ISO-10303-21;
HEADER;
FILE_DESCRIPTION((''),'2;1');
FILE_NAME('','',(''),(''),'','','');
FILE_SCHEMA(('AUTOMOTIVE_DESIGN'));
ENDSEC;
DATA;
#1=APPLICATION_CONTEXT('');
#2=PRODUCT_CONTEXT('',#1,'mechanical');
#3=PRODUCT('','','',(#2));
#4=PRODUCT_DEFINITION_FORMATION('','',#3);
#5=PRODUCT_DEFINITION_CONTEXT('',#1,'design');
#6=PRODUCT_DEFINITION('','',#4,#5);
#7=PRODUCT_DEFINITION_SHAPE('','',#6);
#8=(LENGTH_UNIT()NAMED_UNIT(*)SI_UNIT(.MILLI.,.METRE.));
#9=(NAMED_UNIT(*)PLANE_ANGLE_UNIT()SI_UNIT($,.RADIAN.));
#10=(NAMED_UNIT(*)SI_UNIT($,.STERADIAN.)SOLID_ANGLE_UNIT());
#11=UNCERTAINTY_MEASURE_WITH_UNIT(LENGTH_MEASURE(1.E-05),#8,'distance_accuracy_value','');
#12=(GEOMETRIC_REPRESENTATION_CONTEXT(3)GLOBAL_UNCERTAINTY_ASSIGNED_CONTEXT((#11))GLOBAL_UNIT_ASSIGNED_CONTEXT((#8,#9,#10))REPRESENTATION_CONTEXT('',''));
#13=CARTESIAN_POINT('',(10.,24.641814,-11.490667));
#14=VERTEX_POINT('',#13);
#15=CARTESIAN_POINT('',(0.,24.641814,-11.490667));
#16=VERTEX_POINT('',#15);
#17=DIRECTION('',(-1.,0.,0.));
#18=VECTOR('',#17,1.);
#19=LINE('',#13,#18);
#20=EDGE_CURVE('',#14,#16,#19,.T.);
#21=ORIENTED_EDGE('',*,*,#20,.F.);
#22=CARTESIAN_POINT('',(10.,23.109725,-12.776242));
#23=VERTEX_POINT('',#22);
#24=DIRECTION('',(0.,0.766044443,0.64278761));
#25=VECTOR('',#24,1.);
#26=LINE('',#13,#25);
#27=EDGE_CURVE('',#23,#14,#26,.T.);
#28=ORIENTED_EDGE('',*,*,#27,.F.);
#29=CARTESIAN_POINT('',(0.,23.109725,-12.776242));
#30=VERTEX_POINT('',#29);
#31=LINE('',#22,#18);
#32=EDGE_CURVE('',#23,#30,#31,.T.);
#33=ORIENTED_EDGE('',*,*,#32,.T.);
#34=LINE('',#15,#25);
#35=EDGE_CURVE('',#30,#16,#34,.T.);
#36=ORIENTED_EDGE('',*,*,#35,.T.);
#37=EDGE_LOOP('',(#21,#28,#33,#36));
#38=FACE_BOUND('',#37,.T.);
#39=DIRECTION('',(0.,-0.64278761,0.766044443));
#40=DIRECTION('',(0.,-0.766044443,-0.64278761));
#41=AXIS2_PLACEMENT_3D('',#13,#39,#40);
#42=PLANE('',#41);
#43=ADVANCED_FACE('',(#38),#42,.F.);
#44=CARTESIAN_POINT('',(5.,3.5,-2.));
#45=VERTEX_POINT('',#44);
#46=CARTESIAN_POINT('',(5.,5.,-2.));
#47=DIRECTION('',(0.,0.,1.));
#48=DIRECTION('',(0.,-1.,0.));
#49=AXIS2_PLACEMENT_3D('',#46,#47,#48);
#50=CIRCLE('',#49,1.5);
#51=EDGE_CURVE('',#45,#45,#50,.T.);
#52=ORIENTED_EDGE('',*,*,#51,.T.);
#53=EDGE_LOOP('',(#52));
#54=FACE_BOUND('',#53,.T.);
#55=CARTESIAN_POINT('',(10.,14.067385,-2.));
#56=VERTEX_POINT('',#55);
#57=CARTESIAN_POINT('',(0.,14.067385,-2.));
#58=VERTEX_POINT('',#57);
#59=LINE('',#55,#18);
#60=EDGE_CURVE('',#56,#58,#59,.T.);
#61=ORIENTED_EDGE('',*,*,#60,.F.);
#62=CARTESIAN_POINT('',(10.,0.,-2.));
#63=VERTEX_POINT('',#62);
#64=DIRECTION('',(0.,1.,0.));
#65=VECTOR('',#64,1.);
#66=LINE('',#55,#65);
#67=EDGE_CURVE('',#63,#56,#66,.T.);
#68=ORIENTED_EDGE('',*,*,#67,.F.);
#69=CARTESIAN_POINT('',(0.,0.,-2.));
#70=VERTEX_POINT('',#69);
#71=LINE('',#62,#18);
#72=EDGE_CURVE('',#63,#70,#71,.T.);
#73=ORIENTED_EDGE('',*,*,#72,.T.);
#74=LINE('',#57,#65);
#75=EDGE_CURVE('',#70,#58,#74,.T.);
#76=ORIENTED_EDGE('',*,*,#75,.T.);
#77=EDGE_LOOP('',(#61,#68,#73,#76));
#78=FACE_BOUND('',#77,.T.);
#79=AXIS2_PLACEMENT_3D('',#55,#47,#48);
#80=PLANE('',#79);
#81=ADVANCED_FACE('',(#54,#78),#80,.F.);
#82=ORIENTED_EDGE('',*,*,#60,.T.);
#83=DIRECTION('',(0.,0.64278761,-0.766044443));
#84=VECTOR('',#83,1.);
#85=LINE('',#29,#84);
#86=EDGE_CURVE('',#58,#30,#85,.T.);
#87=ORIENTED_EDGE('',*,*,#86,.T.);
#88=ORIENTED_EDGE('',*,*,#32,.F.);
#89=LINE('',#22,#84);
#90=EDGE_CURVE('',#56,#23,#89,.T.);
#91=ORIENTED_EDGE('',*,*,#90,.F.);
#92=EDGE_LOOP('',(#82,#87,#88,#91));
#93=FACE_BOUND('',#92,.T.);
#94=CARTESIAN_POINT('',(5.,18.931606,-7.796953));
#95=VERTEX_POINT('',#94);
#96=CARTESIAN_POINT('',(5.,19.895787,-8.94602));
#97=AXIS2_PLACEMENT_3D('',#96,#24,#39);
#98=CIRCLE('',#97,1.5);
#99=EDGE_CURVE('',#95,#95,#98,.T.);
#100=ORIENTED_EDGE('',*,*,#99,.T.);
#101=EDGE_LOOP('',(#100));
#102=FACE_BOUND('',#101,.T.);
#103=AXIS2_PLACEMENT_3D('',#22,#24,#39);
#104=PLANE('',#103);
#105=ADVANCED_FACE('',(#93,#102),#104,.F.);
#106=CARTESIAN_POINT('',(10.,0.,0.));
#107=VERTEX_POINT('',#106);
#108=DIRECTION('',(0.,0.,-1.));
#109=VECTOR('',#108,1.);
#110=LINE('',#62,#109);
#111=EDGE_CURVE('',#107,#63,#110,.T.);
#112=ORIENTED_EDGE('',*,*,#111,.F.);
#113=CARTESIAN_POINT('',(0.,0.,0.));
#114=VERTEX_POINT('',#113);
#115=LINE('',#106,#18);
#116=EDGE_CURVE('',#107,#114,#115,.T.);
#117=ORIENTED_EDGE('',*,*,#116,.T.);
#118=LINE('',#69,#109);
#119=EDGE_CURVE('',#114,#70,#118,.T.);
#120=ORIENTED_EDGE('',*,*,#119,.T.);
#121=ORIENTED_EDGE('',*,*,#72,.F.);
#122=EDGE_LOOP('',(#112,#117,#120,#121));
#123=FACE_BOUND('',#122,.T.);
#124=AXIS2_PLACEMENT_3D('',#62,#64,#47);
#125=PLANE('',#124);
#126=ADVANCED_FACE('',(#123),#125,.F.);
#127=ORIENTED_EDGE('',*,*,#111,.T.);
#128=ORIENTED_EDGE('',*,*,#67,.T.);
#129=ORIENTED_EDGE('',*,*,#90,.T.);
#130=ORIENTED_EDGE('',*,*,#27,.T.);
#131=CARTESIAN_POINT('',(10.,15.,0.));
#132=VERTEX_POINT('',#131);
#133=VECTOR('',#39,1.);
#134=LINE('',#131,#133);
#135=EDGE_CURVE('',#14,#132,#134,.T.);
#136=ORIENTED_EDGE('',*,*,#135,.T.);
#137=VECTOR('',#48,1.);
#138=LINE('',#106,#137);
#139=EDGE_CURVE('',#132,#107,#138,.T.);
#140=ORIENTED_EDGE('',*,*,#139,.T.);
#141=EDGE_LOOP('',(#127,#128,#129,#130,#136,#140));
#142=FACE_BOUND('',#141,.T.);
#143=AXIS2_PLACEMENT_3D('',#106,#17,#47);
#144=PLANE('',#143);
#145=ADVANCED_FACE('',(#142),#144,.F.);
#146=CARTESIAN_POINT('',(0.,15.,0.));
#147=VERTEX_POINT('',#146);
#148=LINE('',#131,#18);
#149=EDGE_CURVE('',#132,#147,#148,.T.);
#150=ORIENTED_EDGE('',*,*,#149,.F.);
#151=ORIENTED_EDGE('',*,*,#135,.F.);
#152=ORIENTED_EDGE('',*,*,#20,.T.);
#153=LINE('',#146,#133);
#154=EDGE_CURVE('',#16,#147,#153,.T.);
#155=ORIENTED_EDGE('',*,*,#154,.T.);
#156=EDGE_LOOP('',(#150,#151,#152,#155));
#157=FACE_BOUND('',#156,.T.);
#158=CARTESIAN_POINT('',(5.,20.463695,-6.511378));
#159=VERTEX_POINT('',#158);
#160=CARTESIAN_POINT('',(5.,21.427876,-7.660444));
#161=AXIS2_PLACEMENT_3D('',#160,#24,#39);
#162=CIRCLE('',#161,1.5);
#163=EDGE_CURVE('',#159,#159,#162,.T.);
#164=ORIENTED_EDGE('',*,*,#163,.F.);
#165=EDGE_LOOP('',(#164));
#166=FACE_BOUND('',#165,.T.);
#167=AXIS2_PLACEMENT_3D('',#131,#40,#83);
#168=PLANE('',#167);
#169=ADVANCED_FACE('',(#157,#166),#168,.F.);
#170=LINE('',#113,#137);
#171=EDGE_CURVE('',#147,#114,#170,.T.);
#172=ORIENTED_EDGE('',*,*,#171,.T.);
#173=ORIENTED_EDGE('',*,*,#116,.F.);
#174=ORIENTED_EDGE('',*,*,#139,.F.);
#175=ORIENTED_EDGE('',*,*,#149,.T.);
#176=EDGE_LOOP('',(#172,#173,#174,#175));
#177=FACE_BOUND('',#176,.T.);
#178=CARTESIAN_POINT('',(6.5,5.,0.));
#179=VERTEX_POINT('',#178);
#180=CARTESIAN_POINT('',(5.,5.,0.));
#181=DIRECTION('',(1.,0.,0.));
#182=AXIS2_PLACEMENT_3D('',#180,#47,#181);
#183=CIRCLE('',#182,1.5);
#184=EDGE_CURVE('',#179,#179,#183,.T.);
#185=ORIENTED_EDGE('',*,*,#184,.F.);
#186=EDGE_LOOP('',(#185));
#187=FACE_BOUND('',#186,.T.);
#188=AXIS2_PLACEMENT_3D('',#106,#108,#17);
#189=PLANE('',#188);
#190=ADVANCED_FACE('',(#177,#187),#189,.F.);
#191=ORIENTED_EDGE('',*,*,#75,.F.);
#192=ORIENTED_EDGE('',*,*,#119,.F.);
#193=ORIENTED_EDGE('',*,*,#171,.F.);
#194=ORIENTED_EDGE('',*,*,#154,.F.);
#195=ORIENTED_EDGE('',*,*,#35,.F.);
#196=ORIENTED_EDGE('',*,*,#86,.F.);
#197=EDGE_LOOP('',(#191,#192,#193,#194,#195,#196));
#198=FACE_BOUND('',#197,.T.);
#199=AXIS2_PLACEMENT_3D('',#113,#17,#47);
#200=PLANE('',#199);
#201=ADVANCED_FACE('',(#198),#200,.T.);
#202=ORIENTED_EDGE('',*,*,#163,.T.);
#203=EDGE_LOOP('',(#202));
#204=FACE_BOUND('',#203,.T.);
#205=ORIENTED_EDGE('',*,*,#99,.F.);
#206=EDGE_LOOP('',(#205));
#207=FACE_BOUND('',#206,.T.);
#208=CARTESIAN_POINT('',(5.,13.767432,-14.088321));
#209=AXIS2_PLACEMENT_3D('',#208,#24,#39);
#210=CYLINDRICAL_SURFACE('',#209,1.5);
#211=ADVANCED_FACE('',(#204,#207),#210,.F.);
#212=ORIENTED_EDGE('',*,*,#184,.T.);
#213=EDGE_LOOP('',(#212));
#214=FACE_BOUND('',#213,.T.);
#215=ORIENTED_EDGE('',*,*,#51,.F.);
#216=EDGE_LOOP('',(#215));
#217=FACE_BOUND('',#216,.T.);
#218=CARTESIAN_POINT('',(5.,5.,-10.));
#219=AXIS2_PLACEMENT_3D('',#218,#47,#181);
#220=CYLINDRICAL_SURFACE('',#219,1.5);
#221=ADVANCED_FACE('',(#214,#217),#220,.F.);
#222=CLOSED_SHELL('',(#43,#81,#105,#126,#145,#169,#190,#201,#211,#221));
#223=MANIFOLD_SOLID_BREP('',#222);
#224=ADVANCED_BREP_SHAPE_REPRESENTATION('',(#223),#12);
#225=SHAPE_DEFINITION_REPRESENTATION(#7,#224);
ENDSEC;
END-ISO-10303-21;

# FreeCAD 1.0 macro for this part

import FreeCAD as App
import Part
import Sketcher
Q = App.Units.Quantity


def add_polygon(sketch, points):
    """Adds a closed chain of lines whose ends are joined by coincident constraints."""
    first, n = sketch.GeometryCount, len(points)
    for a, b in zip(points, points[1:] + points[:1]):
        sketch.addGeometry(Part.LineSegment(App.Vector(*a, 0), App.Vector(*b, 0)), False)
    for i in range(n):
        sketch.addConstraint(Sketcher.Constraint("Coincident", first + i, 2, first + (i + 1) % n, 1))

doc = App.newDocument("Part")
body = doc.addObject("PartDesign::Body", "Body")

# Sketch on YZ plane
sketch1 = body.newObject("Sketcher::SketchObject", "Sketch")
sketch1.AttachmentSupport = (doc.getObject("YZ_Plane"), [""])
sketch1.MapMode = "FlatFace"
add_polygon(sketch1, [(15, 0), (0, 0), (0, -2), (14.1, -2), (23.1, -12.8), (24.6, -11.5)])  # lines 0-5
sketch1.addConstraint([
    Sketcher.Constraint("Horizontal", 0),
    Sketcher.Constraint("Vertical", 1),
    Sketcher.Constraint("Horizontal", 2),
    Sketcher.Constraint("Coincident", 0, 2, -1, 1),
    Sketcher.Constraint("Perpendicular", 3, 4),
    Sketcher.Constraint("Perpendicular", 4, 5),
    Sketcher.Constraint("DistanceX", 0, 2, 0, 1, Q("15 mm")),
    Sketcher.Constraint("DistanceY", 1, 2, 1, 1, Q("2 mm")),
    Sketcher.Constraint("Angle", 3, Q("-50 deg")),
    Sketcher.Constraint("Distance", 4, Q("2 mm")),
    Sketcher.Constraint("Distance", 5, Q("15 mm")),
])
pad1 = body.newObject("PartDesign::Pad", "Pad")
pad1.Profile = sketch1
pad1.Length = 10

# Sketch on XY plane
sketch2 = body.newObject("Sketcher::SketchObject", "Sketch001")
sketch2.AttachmentSupport = (doc.getObject("XY_Plane"), [""])
sketch2.MapMode = "FlatFace"
sketch2.addGeometry(Part.Circle(App.Vector(5, 5, 0), App.Vector(0, 0, 1), 1.5), False)
sketch2.addConstraint([
    Sketcher.Constraint("Diameter", 0, Q("3 mm")),
    Sketcher.Constraint("DistanceX", -1, 1, 0, 3, Q("5 mm")),
    Sketcher.Constraint("DistanceY", -1, 1, 0, 3, Q("5 mm")),
])
pocket1 = body.newObject("PartDesign::Pocket", "Pocket")
pocket1.Profile = sketch2
pocket1.Length = 10

# Sketch on an angled plane
sketch3 = body.newObject("Sketcher::SketchObject", "Sketch002")
sketch3.Placement = App.Placement(App.Vector(0, 8.802361, 7.386058), App.Rotation(App.Vector(1, 0, 0), App.Vector(0, 0.64278761, -0.766044443), App.Vector(0, 0.766044443, 0.64278761), "ZXY"))
sketch3.addGeometry(Part.Circle(App.Vector(5, 19.6, 0), App.Vector(0, 0, 1), 1.5), False)
sketch3.addConstraint([
    Sketcher.Constraint("Diameter", 0, Q("3 mm")),
    Sketcher.Constraint("DistanceX", -1, 1, 0, 3, Q("5 mm")),
    Sketcher.Constraint("DistanceY", -1, 1, 0, 3, Q("19.641814 mm")),
])
pocket2 = body.newObject("PartDesign::Pocket", "Pocket001")
pocket2.Profile = sketch3
pocket2.Length = 10

doc.recompute()
